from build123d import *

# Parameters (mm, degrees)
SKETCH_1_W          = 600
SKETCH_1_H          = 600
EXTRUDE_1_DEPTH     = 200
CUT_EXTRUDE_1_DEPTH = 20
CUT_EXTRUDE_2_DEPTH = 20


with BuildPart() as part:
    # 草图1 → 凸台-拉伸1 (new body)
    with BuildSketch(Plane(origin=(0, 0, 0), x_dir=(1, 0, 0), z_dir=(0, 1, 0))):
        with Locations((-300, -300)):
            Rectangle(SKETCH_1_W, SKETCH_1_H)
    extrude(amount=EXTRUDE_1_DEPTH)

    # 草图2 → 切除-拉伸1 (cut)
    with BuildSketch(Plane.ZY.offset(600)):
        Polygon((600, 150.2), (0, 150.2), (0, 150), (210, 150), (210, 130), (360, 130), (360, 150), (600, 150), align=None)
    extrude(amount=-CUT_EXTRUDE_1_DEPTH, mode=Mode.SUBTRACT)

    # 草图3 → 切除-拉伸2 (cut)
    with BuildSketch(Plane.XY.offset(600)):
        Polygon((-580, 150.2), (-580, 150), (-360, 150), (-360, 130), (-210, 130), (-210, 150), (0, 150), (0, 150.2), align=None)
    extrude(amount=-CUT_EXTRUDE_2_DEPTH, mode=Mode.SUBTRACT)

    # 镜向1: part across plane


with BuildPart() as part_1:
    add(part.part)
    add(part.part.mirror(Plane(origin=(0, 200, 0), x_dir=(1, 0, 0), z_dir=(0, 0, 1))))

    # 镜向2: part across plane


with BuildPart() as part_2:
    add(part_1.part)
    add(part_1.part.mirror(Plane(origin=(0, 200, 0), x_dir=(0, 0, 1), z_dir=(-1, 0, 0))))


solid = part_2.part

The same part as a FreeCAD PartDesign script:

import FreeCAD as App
import Part
import Sketcher

V = App.Vector
Q = App.Units.Quantity


def add_polygon(sketch, points):
    """Adds a closed chain of lines whose ends are joined by coincident constraints."""
    first, n = sketch.GeometryCount, len(points)
    for a, b in zip(points, points[1:] + points[:1]):
        sketch.addGeometry(Part.LineSegment(App.Vector(*a, 0), App.Vector(*b, 0)), False)
    for i in range(n):
        sketch.addConstraint(Sketcher.Constraint("Coincident", first + i, 2, first + (i + 1) % n, 1))

doc = App.newDocument("Part")
body = doc.addObject("PartDesign::Body", "Body")

# Sketch on XZ plane
sketch1 = body.newObject("Sketcher::SketchObject", "Sketch")
sketch1.AttachmentSupport = (doc.getObject("XZ_Plane"), [""])
sketch1.MapMode = "FlatFace"
add_polygon(sketch1, [(-600, 0), (-600, 600), (0, 600), (0, 0)])  # lines 0-3
sketch1.addConstraint([
    Sketcher.Constraint("Vertical", 0),
    Sketcher.Constraint("Horizontal", 1),
    Sketcher.Constraint("Vertical", 2),
    Sketcher.Constraint("Horizontal", 3),
    Sketcher.Constraint("Coincident", 2, 2, -1, 1),
    Sketcher.Constraint("Equal", 3, 0),
    Sketcher.Constraint("DistanceX", 1, 1, 1, 2, Q("600 mm")),
])
pad1 = body.newObject("PartDesign::Pad", "Pad")
pad1.Profile = sketch1
pad1.Length = 200
pad1.Reversed = True

# Sketch on YZ plane
sketch2 = body.newObject("Sketcher::SketchObject", "Sketch001")
sketch2.AttachmentSupport = (doc.getObject("YZ_Plane"), [""])
sketch2.MapMode = "FlatFace"
sketch2.AttachmentOffset = App.Placement(V(0, 0, -600), App.Rotation())
add_polygon(sketch2, [(150.2, 600), (150.2, 0), (150, 0), (150, 210), (130, 210), (130, 360), (150, 360), (150, 600)])  # lines 0-7
sketch2.addConstraint([
    Sketcher.Constraint("Vertical", 0),
    Sketcher.Constraint("Horizontal", 1),
    Sketcher.Constraint("Vertical", 2),
    Sketcher.Constraint("Horizontal", 3),
    Sketcher.Constraint("Vertical", 4),
    Sketcher.Constraint("Horizontal", 5),
    Sketcher.Constraint("Vertical", 6),
    Sketcher.Constraint("Horizontal", 7),
    Sketcher.Constraint("PointOnObject", 0, 2, -1),
    Sketcher.Constraint("Vertical", 2, 2, 5, 2),
    Sketcher.Constraint("DistanceX", 3, 2, 3, 1, Q("20 mm")),
    Sketcher.Constraint("DistanceY", 0, 2, 0, 1, Q("600 mm")),
    Sketcher.Constraint("DistanceY", 2, 1, 2, 2, Q("210 mm")),
    Sketcher.Constraint("DistanceY", 4, 1, 4, 2, Q("150 mm")),
    Sketcher.Constraint("DistanceX", 1, 2, 1, 1, Q("0.2 mm")),
    Sketcher.Constraint("DistanceX", -1, 1, 1, 2, Q("150 mm")),
])
pocket1 = body.newObject("PartDesign::Pocket", "Pocket")
pocket1.Profile = sketch2
pocket1.Length = 20
pocket1.Reversed = True

# Sketch on XY plane
sketch3 = body.newObject("Sketcher::SketchObject", "Sketch002")
sketch3.AttachmentSupport = (doc.getObject("XY_Plane"), [""])
sketch3.MapMode = "FlatFace"
sketch3.AttachmentOffset = App.Placement(V(0, 0, 600), App.Rotation())
add_polygon(sketch3, [(-580, 150.2), (-580, 150), (-360, 150), (-360, 130), (-210, 130), (-210, 150), (0, 150), (0, 150.2)])  # lines 0-7
sketch3.addConstraint([
    Sketcher.Constraint("Vertical", 0),
    Sketcher.Constraint("Horizontal", 1),
    Sketcher.Constraint("Vertical", 2),
    Sketcher.Constraint("Horizontal", 3),
    Sketcher.Constraint("Vertical", 4),
    Sketcher.Constraint("Horizontal", 5),
    Sketcher.Constraint("Vertical", 6),
    Sketcher.Constraint("Horizontal", 7),
    Sketcher.Constraint("PointOnObject", 5, 2, -2),
    Sketcher.Constraint("Horizontal", 1, 2, 4, 2),
    Sketcher.Constraint("DistanceX", 1, 1, 1, 2, Q("220 mm")),
    Sketcher.Constraint("DistanceX", 3, 1, 3, 2, Q("150 mm")),
    Sketcher.Constraint("DistanceX", 5, 1, 5, 2, Q("210 mm")),
    Sketcher.Constraint("DistanceY", 2, 2, 2, 1, Q("20 mm")),
    Sketcher.Constraint("DistanceY", 0, 2, 0, 1, Q("0.2 mm")),
    Sketcher.Constraint("DistanceY", -1, 1, 0, 2, Q("150 mm")),
])
pocket2 = body.newObject("PartDesign::Pocket", "Pocket001")
pocket2.Profile = sketch3
pocket2.Length = 20
body2 = doc.addObject("PartDesign::Body", "Body001")
doc.recompute()

body2.BaseFeature = body
doc.recompute()

mirroring = doc.addObject("Part::Mirroring", "Mirroring")
mirroring.Source = body
mirroring.Base = V(0, 200, 0)
mirroring.Normal = V(0, 0, 1)
body3 = doc.addObject("PartDesign::Body", "Body002")
body3.BaseFeature = mirroring
boolean = body2.newObject("PartDesign::Boolean", "Boolean")
boolean.Type = "Fuse"
boolean.addObjects([body3])
doc.recompute()
body4 = doc.addObject("PartDesign::Body", "Body003")
doc.recompute()

body4.BaseFeature = body2
doc.recompute()

mirroring2 = doc.addObject("Part::Mirroring", "Mirroring001")
mirroring2.Source = body2
mirroring2.Base = V(0, 200, 0)
mirroring2.Normal = V(-1, 0, 0)
body5 = doc.addObject("PartDesign::Body", "Body004")
body5.BaseFeature = mirroring2
boolean2 = body4.newObject("PartDesign::Boolean", "Boolean001")
boolean2.Type = "Fuse"
boolean2.addObjects([body5])
doc.recompute()
mirroring.Visibility = False
mirroring2.Visibility = False

doc.recompute()
